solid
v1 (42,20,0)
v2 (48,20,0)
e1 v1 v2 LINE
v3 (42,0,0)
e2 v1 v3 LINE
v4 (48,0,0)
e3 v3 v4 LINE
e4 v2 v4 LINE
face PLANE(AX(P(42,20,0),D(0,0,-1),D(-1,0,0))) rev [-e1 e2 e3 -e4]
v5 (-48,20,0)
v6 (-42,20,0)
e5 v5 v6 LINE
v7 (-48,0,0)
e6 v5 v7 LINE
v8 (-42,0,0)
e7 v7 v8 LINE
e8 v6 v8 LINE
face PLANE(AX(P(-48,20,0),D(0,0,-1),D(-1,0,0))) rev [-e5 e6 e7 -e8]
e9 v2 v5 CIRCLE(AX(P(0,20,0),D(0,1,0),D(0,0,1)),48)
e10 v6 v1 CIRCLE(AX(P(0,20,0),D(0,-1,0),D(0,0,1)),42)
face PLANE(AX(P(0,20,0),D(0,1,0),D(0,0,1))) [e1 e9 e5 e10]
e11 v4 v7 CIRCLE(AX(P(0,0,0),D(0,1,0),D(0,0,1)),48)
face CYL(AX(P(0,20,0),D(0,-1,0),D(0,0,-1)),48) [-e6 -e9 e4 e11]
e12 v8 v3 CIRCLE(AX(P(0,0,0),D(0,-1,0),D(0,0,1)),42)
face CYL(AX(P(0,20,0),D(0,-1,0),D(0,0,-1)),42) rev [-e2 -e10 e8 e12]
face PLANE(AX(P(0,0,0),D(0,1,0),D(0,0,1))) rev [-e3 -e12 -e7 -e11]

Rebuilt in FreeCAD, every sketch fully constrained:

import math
import FreeCAD as App
import Part
import Sketcher

V = App.Vector

doc = App.newDocument("Part")
body = doc.addObject("PartDesign::Body", "Body")

# Sketch on XZ plane
sketch1 = body.newObject("Sketcher::SketchObject", "Sketch")
sketch1.AttachmentSupport = (doc.getObject("XZ_Plane"), [""])
sketch1.MapMode = "FlatFace"
sketch1.addGeometry(Part.LineSegment(V(42, 0, 0), V(48, 0, 0)), False)
sketch1.addGeometry(Part.ArcOfCircle(Part.Circle(V(0, 0, 0), V(0, 0, 1), 48), math.radians(180), math.radians(360)), False)
sketch1.addGeometry(Part.LineSegment(V(-48, 0, 0), V(-42, 0, 0)), False)
sketch1.addGeometry(Part.ArcOfCircle(Part.Circle(V(0, 0, 0), V(0, 0, 1), 42), math.radians(180), math.radians(360)), False)
sketch1.addConstraint(Sketcher.Constraint("Coincident", 0, 2, 1, 2))
sketch1.addConstraint(Sketcher.Constraint("Coincident", 1, 1, 2, 1))
sketch1.addConstraint(Sketcher.Constraint("Coincident", 2, 2, 3, 1))
sketch1.addConstraint(Sketcher.Constraint("Coincident", 3, 2, 0, 1))
sketch1.addConstraint(Sketcher.Constraint("Horizontal", 0))
sketch1.addConstraint(Sketcher.Constraint("Horizontal", 2))
sketch1.addConstraint(Sketcher.Constraint("Coincident", 1, 3, -1, 1))
sketch1.addConstraint(Sketcher.Constraint("Coincident", 3, 3, -1, 1))
sketch1.addConstraint(Sketcher.Constraint("PointOnObject", 0, 2, -1))
sketch1.addConstraint(Sketcher.Constraint("PointOnObject", 1, 1, -1))
sketch1.addConstraint(Sketcher.Constraint("Radius", 1, 48.0))
sketch1.addConstraint(Sketcher.Constraint("Radius", 3, 42.0))
pad1 = body.newObject("PartDesign::Pad", "Pad")
pad1.Profile = sketch1
pad1.Length = 20
pad1.Reversed = True

doc.recompute()
